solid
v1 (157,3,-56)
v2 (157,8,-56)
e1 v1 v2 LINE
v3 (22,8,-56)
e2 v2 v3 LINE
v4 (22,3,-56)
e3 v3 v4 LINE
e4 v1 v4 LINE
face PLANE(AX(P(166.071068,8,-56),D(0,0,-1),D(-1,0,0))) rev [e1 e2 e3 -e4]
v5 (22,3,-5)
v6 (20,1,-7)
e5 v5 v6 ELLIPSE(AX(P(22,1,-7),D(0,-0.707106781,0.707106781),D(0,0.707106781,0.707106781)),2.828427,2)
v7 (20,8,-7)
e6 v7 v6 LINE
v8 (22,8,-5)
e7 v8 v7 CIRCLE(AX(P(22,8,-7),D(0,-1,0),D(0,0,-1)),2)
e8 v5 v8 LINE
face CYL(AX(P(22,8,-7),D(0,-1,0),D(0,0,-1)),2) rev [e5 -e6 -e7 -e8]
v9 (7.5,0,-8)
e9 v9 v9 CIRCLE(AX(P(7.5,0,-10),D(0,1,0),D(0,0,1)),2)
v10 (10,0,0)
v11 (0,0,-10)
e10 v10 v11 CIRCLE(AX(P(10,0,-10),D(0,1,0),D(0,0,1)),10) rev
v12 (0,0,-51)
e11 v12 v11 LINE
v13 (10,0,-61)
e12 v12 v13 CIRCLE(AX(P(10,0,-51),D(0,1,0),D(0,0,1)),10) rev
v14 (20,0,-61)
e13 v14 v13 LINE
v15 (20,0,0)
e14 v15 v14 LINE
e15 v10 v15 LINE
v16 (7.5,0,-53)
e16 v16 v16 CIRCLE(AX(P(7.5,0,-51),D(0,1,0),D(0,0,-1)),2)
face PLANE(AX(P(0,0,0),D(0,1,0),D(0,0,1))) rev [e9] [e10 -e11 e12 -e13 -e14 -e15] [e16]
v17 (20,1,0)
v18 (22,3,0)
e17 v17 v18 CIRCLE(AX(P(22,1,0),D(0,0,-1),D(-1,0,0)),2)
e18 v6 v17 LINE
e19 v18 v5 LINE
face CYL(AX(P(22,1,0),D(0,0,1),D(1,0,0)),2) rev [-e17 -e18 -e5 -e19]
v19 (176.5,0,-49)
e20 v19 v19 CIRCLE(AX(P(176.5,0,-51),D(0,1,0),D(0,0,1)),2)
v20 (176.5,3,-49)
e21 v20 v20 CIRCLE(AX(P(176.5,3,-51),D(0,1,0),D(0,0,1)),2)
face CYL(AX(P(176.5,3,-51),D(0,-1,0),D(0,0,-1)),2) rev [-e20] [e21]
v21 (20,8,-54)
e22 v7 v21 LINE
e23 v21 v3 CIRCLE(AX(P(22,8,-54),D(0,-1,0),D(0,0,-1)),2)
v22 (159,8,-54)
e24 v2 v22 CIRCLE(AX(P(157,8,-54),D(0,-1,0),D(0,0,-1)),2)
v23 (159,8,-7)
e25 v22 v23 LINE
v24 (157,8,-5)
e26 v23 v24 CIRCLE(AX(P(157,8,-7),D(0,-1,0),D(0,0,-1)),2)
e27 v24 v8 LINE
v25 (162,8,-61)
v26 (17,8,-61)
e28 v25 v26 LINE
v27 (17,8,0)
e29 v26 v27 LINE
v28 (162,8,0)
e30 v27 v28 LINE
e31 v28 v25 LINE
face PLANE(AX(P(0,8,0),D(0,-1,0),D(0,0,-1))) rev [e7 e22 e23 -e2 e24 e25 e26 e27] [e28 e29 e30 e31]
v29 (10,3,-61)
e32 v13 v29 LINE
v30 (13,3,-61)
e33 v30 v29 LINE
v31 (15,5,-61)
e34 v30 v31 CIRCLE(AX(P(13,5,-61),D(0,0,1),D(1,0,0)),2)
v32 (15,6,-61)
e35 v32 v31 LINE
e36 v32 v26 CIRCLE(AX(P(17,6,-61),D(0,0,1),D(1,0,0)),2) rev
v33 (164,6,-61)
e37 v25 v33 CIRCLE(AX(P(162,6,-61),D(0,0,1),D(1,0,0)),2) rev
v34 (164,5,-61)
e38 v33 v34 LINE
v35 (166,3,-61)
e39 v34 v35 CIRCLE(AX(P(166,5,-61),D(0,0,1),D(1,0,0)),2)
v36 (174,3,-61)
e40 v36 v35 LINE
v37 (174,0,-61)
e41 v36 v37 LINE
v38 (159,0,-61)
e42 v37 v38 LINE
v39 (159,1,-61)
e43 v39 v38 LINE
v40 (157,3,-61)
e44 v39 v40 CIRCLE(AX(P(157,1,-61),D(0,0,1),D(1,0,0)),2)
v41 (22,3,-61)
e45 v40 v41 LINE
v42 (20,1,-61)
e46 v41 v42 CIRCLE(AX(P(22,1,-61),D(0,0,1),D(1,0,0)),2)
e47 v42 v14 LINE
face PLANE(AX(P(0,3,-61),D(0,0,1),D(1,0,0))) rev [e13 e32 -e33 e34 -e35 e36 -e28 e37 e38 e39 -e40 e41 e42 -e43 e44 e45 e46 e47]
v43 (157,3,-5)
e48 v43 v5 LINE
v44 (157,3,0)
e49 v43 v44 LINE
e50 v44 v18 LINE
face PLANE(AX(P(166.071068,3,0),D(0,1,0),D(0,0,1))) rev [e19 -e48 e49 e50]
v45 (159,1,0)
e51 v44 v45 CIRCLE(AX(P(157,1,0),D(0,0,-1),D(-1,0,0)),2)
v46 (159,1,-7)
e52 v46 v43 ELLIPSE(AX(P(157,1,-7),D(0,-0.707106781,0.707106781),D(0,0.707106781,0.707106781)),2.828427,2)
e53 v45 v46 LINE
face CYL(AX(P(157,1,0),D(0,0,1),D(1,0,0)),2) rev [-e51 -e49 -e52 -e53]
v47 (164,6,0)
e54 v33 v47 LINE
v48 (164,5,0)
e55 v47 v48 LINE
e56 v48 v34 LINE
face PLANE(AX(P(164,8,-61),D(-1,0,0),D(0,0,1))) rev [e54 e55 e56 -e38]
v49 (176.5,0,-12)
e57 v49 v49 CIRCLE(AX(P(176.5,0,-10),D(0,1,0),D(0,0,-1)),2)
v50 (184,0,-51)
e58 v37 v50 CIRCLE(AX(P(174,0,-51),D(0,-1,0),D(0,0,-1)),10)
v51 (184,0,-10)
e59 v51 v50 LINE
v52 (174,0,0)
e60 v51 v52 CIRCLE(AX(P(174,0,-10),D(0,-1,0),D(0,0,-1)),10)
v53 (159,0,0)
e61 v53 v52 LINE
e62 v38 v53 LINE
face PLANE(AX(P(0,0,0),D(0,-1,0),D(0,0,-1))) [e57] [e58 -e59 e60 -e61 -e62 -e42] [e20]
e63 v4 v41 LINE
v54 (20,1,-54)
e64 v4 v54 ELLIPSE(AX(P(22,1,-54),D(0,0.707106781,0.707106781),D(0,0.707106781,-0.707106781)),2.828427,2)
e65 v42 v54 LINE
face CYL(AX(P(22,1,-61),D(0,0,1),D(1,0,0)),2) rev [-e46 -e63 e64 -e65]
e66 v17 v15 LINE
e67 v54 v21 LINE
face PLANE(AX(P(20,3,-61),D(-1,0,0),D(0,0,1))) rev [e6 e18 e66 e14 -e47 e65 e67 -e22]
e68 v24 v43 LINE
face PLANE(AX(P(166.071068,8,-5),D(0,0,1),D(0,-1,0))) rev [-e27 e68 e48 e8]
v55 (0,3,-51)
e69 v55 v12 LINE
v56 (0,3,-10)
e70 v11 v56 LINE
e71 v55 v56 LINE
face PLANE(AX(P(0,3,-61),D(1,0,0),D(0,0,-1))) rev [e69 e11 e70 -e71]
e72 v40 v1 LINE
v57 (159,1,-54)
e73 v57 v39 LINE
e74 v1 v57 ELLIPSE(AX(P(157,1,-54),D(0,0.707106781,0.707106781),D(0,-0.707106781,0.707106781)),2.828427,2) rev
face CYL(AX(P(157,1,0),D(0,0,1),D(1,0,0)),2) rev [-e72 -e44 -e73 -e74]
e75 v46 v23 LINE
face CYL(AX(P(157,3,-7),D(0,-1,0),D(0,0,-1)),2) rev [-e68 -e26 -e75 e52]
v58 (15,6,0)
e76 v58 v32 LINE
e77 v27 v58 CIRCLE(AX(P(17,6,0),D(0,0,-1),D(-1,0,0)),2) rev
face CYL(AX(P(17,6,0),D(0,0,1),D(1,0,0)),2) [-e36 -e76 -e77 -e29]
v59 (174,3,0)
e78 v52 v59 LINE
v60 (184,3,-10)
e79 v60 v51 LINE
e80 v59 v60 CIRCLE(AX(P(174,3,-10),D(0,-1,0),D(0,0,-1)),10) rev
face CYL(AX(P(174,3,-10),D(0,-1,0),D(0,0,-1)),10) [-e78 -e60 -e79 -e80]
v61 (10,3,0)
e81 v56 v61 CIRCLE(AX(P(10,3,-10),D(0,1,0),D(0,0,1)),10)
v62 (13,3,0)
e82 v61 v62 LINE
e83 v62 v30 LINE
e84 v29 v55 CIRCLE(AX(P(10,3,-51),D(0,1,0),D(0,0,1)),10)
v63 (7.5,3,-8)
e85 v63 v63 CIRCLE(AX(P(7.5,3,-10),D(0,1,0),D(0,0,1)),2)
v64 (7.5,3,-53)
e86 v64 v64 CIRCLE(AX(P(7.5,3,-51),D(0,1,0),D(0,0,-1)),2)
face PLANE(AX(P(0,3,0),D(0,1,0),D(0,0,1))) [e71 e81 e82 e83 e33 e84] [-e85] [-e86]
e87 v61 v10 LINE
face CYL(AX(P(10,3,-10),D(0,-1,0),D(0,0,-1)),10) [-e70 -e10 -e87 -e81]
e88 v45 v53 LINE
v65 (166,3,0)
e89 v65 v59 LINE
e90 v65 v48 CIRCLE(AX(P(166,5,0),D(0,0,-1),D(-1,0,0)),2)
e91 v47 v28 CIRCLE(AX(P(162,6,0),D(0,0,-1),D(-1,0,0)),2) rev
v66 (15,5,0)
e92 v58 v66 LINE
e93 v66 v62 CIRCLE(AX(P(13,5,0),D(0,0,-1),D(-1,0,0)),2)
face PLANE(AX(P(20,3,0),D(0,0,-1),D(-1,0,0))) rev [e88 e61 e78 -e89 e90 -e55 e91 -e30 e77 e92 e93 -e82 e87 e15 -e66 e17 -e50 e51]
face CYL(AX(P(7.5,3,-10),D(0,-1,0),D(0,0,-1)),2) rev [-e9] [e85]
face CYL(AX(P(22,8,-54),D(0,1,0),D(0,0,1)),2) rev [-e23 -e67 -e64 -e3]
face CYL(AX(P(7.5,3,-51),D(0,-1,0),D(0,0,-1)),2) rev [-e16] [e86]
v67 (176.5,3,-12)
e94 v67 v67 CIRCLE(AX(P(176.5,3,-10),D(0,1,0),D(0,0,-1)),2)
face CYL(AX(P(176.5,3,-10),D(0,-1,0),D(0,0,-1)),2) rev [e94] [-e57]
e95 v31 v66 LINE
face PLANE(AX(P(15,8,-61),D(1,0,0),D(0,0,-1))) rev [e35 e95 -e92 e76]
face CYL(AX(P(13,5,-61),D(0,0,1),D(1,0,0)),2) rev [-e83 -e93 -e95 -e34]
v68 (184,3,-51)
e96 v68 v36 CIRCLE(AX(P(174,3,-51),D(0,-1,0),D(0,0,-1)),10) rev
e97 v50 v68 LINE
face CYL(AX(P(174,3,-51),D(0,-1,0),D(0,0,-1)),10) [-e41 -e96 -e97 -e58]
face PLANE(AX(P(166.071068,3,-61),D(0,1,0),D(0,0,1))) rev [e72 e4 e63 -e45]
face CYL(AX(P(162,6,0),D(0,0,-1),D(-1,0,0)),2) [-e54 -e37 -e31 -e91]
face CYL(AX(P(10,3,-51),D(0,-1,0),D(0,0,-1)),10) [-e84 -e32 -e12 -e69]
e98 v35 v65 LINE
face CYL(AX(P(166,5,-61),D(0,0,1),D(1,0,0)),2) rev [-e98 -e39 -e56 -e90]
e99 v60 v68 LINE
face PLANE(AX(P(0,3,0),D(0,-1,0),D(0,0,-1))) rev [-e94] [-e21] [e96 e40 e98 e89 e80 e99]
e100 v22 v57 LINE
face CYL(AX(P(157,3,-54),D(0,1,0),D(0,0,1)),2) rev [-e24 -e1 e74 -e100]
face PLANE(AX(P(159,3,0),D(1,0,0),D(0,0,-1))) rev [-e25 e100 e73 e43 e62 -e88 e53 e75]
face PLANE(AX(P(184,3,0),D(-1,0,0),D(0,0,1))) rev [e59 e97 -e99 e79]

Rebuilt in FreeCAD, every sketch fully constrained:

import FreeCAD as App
import Part
import Sketcher

V = App.Vector
Q = App.Units.Quantity


def edges_at(feature, points):
    """Names of the edges that pass closest to the given points."""
    edges = feature.Shape.Edges
    near = lambda p: min(range(len(edges)), key=lambda i: edges[i].distToShape(Part.Vertex(*p))[0])
    return sorted({f"Edge{near(p) + 1}" for p in points})

doc = App.newDocument("Part")
params = doc.addObject("Spreadsheet::Sheet", "Params")
for row, (alias, value) in enumerate([
    ("sketch1_diameter", "4 mm"),
    ("sketch1_width", "25 mm"),
    ("sketch1_height", "61 mm"),
    ("pad1_length", "3 mm"),
    ("sketch2_diameter", "4 mm"),
    ("sketch2_width", "20 mm"),
    ("sketch2_height", "61 mm"),
    ("pad2_length", "3 mm"),
    ("sketch3_width", "5 mm"),
    ("sketch3_height", "61 mm"),
    ("pad3_length", "5 mm"),
    ("sketch4_width", "5 mm"),
    ("pad4_length", "139 mm"),
    ("fillet_radius", "10 mm"),
    ("fillet2_radius", "2 mm"),
], start=1):
    params.set(f"A{row}", alias)
    params.set(f"B{row}", "=" + value)
    params.setAlias(f"B{row}", alias)

body = doc.addObject("PartDesign::Body", "Body")

# Sketch on XZ plane
sketch1 = doc.addObject("Sketcher::SketchObject", "Sketch")
body.addObject(sketch1)
sketch1.AttachmentSupport = (doc.XZ_Plane, [""])
sketch1.MapMode = "FlatFace"
sketch1.addGeometry([
    Part.LineSegment(V(159, -61, 0), V(159, 0, 0)),  # 0
    Part.LineSegment(V(159, 0, 0), V(184, 0, 0)),  # 1
    Part.LineSegment(V(184, 0, 0), V(184, -61, 0)),  # 2
    Part.LineSegment(V(184, -61, 0), V(159, -61, 0)),  # 3
    Part.Circle(V(176.5, -10, 0), V(0, 0, 1), 2),  # 4
    Part.Circle(V(176.5, -51, 0), V(0, 0, 1), 2),  # 5
], False)
sketch1.addConstraint([
    Sketcher.Constraint("Coincident", 0, 2, 1, 1),
    Sketcher.Constraint("Coincident", 1, 2, 2, 1),
    Sketcher.Constraint("Coincident", 2, 2, 3, 1),
    Sketcher.Constraint("Coincident", 3, 2, 0, 1),
    Sketcher.Constraint("Vertical", 0),
    Sketcher.Constraint("Horizontal", 1),
    Sketcher.Constraint("Vertical", 2),
    Sketcher.Constraint("Horizontal", 3),
    Sketcher.Constraint("Equal", 4, 5),
    Sketcher.Constraint("PointOnObject", 0, 2, -1),
    Sketcher.Constraint("Vertical", 4, 3, 5, 3),
    Sketcher.Constraint("Diameter", 4, Q("4 mm")),
    Sketcher.Constraint("DistanceX", 1, 1, 1, 2, Q("25 mm")),
    Sketcher.Constraint("DistanceY", 0, 1, 0, 2, Q("61 mm")),
    Sketcher.Constraint("DistanceY", 4, 3, -1, 1, Q("10 mm")),
    Sketcher.Constraint("DistanceY", 5, 3, -1, 1, Q("51 mm")),
    Sketcher.Constraint("DistanceX", -1, 1, 0, 2, Q("159 mm")),
    Sketcher.Constraint("DistanceX", -1, 1, 4, 3, Q("176.5 mm")),
])
sketch1.setExpression("Constraints[11]", "Params.sketch1_diameter")
sketch1.setExpression("Constraints[12]", "Params.sketch1_width")
sketch1.setExpression("Constraints[13]", "Params.sketch1_height")
pad1 = doc.addObject("PartDesign::Pad", "Pad")
body.addObject(pad1)
pad1.Profile = sketch1
pad1.setExpression("Length", "Params.pad1_length")
pad1.Reversed = True
body2 = doc.addObject("PartDesign::Body", "Body001")

# Sketch on XZ plane
sketch2 = doc.addObject("Sketcher::SketchObject", "Sketch001")
body2.addObject(sketch2)
sketch2.AttachmentSupport = (doc.getObject("XZ_Plane001"), [""])
sketch2.MapMode = "FlatFace"
sketch2.addGeometry([
    Part.LineSegment(V(0, -61, 0), V(0, 0, 0)),  # 0
    Part.LineSegment(V(0, 0, 0), V(20, 0, 0)),  # 1
    Part.LineSegment(V(20, 0, 0), V(20, -61, 0)),  # 2
    Part.LineSegment(V(20, -61, 0), V(0, -61, 0)),  # 3
    Part.Circle(V(7.5, -10, 0), V(0, 0, 1), 2),  # 4
    Part.Circle(V(7.5, -51, 0), V(0, 0, 1), 2),  # 5
], False)
sketch2.addConstraint([
    Sketcher.Constraint("Coincident", 0, 2, 1, 1),
    Sketcher.Constraint("Coincident", 1, 2, 2, 1),
    Sketcher.Constraint("Coincident", 2, 2, 3, 1),
    Sketcher.Constraint("Coincident", 3, 2, 0, 1),
    Sketcher.Constraint("Vertical", 0),
    Sketcher.Constraint("Horizontal", 1),
    Sketcher.Constraint("Vertical", 2),
    Sketcher.Constraint("Horizontal", 3),
    Sketcher.Constraint("Coincident", 0, 2, -1, 1),
    Sketcher.Constraint("Equal", 4, 5),
    Sketcher.Constraint("Vertical", 4, 3, 5, 3),
    Sketcher.Constraint("Diameter", 4, Q("4 mm")),
    Sketcher.Constraint("DistanceX", 1, 1, 1, 2, Q("20 mm")),
    Sketcher.Constraint("DistanceY", 0, 1, 0, 2, Q("61 mm")),
    Sketcher.Constraint("DistanceY", 4, 3, -1, 1, Q("10 mm")),
    Sketcher.Constraint("DistanceY", 5, 3, -1, 1, Q("51 mm")),
    Sketcher.Constraint("DistanceX", -1, 1, 4, 3, Q("7.5 mm")),
])
sketch2.setExpression("Constraints[11]", "Params.sketch2_diameter")
sketch2.setExpression("Constraints[12]", "Params.sketch2_width")
sketch2.setExpression("Constraints[13]", "Params.sketch2_height")
pad2 = doc.addObject("PartDesign::Pad", "Pad001")
body2.addObject(pad2)
pad2.Profile = sketch2
pad2.setExpression("Length", "Params.pad2_length")
pad2.Reversed = True
body.AllowCompound = True
doc.recompute()

boolean = doc.addObject("PartDesign::Boolean", "Boolean")
body.addObject(boolean)
boolean.Type = "Fuse"
boolean.addObjects([body2])

# Sketch on XZ plane
sketch3 = doc.addObject("Sketcher::SketchObject", "Sketch002")
body.addObject(sketch3)
sketch3.AttachmentSupport = (doc.XZ_Plane, [""])
sketch3.MapMode = "FlatFace"
sketch3.AttachmentOffset = App.Placement(V(0, 0, -3), App.Rotation())
sketch3.addGeometry([
    Part.LineSegment(V(15, -61, 0), V(15, 0, 0)),  # 0
    Part.LineSegment(V(15, 0, 0), V(20, 0, 0)),  # 1
    Part.LineSegment(V(20, 0, 0), V(20, -61, 0)),  # 2
    Part.LineSegment(V(20, -61, 0), V(15, -61, 0)),  # 3
    Part.LineSegment(V(159, -61, 0), V(159, 0, 0)),  # 4
    Part.LineSegment(V(159, 0, 0), V(164, 0, 0)),  # 5
    Part.LineSegment(V(164, 0, 0), V(164, -61, 0)),  # 6
    Part.LineSegment(V(164, -61, 0), V(159, -61, 0)),  # 7
], False)
sketch3.addConstraint([
    Sketcher.Constraint("Coincident", 0, 2, 1, 1),
    Sketcher.Constraint("Coincident", 1, 2, 2, 1),
    Sketcher.Constraint("Coincident", 2, 2, 3, 1),
    Sketcher.Constraint("Coincident", 3, 2, 0, 1),
    Sketcher.Constraint("Coincident", 4, 2, 5, 1),
    Sketcher.Constraint("Coincident", 5, 2, 6, 1),
    Sketcher.Constraint("Coincident", 6, 2, 7, 1),
    Sketcher.Constraint("Coincident", 7, 2, 4, 1),
    Sketcher.Constraint("Vertical", 0),
    Sketcher.Constraint("Horizontal", 1),
    Sketcher.Constraint("Vertical", 2),
    Sketcher.Constraint("Horizontal", 3),
    Sketcher.Constraint("Vertical", 4),
    Sketcher.Constraint("Horizontal", 5),
    Sketcher.Constraint("Vertical", 6),
    Sketcher.Constraint("Horizontal", 7),
    Sketcher.Constraint("PointOnObject", 0, 2, -1),
    Sketcher.Constraint("PointOnObject", 4, 2, -1),
    Sketcher.Constraint("Horizontal", 3, 2, 6, 2),
    Sketcher.Constraint("Equal", 3, 5),
    Sketcher.Constraint("DistanceX", 1, 1, 1, 2, Q("5 mm")),
    Sketcher.Constraint("DistanceY", 0, 1, 0, 2, Q("61 mm")),
    Sketcher.Constraint("DistanceX", -1, 1, 0, 2, Q("15 mm")),
    Sketcher.Constraint("DistanceX", -1, 1, 4, 2, Q("159 mm")),
])
sketch3.setExpression("Constraints[20]", "Params.sketch3_width")
sketch3.setExpression("Constraints[21]", "Params.sketch3_height")
pad3 = doc.addObject("PartDesign::Pad", "Pad002")
body.addObject(pad3)
pad3.Profile = sketch3
pad3.setExpression("Length", "Params.pad3_length")
pad3.Reversed = True

# Sketch on YZ plane
sketch4 = doc.addObject("Sketcher::SketchObject", "Sketch003")
body.addObject(sketch4)
sketch4.AttachmentSupport = (doc.YZ_Plane, [""])
sketch4.MapMode = "FlatFace"
sketch4.AttachmentOffset = App.Placement(V(0, 0, 20), App.Rotation())
sketch4.addGeometry([
    Part.LineSegment(V(8, 0, 0), V(3, 0, 0)),  # 0
    Part.LineSegment(V(3, 0, 0), V(3, -5, 0)),  # 1
    Part.LineSegment(V(3, -5, 0), V(8, -5, 0)),  # 2
    Part.LineSegment(V(8, -5, 0), V(8, 0, 0)),  # 3
    Part.LineSegment(V(8, -56, 0), V(3, -56, 0)),  # 4
    Part.LineSegment(V(3, -56, 0), V(3, -61, 0)),  # 5
    Part.LineSegment(V(3, -61, 0), V(8, -61, 0)),  # 6
    Part.LineSegment(V(8, -61, 0), V(8, -56, 0)),  # 7
], False)
sketch4.addConstraint([
    Sketcher.Constraint("Coincident", 0, 2, 1, 1),
    Sketcher.Constraint("Coincident", 1, 2, 2, 1),
    Sketcher.Constraint("Coincident", 2, 2, 3, 1),
    Sketcher.Constraint("Coincident", 3, 2, 0, 1),
    Sketcher.Constraint("Coincident", 4, 2, 5, 1),
    Sketcher.Constraint("Coincident", 5, 2, 6, 1),
    Sketcher.Constraint("Coincident", 6, 2, 7, 1),
    Sketcher.Constraint("Coincident", 7, 2, 4, 1),
    Sketcher.Constraint("Horizontal", 0),
    Sketcher.Constraint("Vertical", 1),
    Sketcher.Constraint("Horizontal", 2),
    Sketcher.Constraint("Vertical", 3),
    Sketcher.Constraint("Horizontal", 4),
    Sketcher.Constraint("Vertical", 5),
    Sketcher.Constraint("Horizontal", 6),
    Sketcher.Constraint("Vertical", 7),
    Sketcher.Constraint("PointOnObject", 0, 2, -1),
    Sketcher.Constraint("Vertical", 1, 2, 4, 2),
    Sketcher.Constraint("Vertical", 3, 2, 6, 2),
    Sketcher.Constraint("Equal", 6, 1),
    Sketcher.Constraint("Equal", 3, 5),
    Sketcher.Constraint("DistanceX", 0, 2, 0, 1, Q("5 mm")),
    Sketcher.Constraint("DistanceX", -1, 1, 0, 2, Q("3 mm")),
    Sketcher.Constraint("DistanceY", 4, 2, -1, 1, Q("56 mm")),
])
sketch4.setExpression("Constraints[21]", "Params.sketch4_width")
pad4 = doc.addObject("PartDesign::Pad", "Pad003")
body.addObject(pad4)
pad4.Profile = sketch4
pad4.setExpression("Length", "Params.pad4_length")
doc.recompute()

fillet = doc.addObject("PartDesign::Fillet", "Fillet")
body.addObject(fillet)
fillet.Base = (pad4, edges_at(pad4, [
    (184, 1.5, 0),
    (184, 1.5, -61),
    (0, 1.5, 0),
    (0, 1.5, -61),
]))
fillet.setExpression("Radius", "Params.fillet_radius")
doc.recompute()

fillet2 = doc.addObject("PartDesign::Fillet", "Fillet001")
body.addObject(fillet2)
fillet2.Base = (fillet, edges_at(fillet, [
    (15, 3, -30.5),
    (15, 8, -30.5),
    (20, 3, -2.5),
    (20, 5.5, -5),
    (159, 3, -2.5),
    (159, 5.5, -5),
    (164, 3, -30.5),
    (164, 8, -30.5),
    (20, 5.5, -56),
    (20, 3, -58.5),
    (159, 3, -58.5),
    (159, 5.5, -56),
]))
fillet2.setExpression("Radius", "Params.fillet2_radius")

doc.recompute()
